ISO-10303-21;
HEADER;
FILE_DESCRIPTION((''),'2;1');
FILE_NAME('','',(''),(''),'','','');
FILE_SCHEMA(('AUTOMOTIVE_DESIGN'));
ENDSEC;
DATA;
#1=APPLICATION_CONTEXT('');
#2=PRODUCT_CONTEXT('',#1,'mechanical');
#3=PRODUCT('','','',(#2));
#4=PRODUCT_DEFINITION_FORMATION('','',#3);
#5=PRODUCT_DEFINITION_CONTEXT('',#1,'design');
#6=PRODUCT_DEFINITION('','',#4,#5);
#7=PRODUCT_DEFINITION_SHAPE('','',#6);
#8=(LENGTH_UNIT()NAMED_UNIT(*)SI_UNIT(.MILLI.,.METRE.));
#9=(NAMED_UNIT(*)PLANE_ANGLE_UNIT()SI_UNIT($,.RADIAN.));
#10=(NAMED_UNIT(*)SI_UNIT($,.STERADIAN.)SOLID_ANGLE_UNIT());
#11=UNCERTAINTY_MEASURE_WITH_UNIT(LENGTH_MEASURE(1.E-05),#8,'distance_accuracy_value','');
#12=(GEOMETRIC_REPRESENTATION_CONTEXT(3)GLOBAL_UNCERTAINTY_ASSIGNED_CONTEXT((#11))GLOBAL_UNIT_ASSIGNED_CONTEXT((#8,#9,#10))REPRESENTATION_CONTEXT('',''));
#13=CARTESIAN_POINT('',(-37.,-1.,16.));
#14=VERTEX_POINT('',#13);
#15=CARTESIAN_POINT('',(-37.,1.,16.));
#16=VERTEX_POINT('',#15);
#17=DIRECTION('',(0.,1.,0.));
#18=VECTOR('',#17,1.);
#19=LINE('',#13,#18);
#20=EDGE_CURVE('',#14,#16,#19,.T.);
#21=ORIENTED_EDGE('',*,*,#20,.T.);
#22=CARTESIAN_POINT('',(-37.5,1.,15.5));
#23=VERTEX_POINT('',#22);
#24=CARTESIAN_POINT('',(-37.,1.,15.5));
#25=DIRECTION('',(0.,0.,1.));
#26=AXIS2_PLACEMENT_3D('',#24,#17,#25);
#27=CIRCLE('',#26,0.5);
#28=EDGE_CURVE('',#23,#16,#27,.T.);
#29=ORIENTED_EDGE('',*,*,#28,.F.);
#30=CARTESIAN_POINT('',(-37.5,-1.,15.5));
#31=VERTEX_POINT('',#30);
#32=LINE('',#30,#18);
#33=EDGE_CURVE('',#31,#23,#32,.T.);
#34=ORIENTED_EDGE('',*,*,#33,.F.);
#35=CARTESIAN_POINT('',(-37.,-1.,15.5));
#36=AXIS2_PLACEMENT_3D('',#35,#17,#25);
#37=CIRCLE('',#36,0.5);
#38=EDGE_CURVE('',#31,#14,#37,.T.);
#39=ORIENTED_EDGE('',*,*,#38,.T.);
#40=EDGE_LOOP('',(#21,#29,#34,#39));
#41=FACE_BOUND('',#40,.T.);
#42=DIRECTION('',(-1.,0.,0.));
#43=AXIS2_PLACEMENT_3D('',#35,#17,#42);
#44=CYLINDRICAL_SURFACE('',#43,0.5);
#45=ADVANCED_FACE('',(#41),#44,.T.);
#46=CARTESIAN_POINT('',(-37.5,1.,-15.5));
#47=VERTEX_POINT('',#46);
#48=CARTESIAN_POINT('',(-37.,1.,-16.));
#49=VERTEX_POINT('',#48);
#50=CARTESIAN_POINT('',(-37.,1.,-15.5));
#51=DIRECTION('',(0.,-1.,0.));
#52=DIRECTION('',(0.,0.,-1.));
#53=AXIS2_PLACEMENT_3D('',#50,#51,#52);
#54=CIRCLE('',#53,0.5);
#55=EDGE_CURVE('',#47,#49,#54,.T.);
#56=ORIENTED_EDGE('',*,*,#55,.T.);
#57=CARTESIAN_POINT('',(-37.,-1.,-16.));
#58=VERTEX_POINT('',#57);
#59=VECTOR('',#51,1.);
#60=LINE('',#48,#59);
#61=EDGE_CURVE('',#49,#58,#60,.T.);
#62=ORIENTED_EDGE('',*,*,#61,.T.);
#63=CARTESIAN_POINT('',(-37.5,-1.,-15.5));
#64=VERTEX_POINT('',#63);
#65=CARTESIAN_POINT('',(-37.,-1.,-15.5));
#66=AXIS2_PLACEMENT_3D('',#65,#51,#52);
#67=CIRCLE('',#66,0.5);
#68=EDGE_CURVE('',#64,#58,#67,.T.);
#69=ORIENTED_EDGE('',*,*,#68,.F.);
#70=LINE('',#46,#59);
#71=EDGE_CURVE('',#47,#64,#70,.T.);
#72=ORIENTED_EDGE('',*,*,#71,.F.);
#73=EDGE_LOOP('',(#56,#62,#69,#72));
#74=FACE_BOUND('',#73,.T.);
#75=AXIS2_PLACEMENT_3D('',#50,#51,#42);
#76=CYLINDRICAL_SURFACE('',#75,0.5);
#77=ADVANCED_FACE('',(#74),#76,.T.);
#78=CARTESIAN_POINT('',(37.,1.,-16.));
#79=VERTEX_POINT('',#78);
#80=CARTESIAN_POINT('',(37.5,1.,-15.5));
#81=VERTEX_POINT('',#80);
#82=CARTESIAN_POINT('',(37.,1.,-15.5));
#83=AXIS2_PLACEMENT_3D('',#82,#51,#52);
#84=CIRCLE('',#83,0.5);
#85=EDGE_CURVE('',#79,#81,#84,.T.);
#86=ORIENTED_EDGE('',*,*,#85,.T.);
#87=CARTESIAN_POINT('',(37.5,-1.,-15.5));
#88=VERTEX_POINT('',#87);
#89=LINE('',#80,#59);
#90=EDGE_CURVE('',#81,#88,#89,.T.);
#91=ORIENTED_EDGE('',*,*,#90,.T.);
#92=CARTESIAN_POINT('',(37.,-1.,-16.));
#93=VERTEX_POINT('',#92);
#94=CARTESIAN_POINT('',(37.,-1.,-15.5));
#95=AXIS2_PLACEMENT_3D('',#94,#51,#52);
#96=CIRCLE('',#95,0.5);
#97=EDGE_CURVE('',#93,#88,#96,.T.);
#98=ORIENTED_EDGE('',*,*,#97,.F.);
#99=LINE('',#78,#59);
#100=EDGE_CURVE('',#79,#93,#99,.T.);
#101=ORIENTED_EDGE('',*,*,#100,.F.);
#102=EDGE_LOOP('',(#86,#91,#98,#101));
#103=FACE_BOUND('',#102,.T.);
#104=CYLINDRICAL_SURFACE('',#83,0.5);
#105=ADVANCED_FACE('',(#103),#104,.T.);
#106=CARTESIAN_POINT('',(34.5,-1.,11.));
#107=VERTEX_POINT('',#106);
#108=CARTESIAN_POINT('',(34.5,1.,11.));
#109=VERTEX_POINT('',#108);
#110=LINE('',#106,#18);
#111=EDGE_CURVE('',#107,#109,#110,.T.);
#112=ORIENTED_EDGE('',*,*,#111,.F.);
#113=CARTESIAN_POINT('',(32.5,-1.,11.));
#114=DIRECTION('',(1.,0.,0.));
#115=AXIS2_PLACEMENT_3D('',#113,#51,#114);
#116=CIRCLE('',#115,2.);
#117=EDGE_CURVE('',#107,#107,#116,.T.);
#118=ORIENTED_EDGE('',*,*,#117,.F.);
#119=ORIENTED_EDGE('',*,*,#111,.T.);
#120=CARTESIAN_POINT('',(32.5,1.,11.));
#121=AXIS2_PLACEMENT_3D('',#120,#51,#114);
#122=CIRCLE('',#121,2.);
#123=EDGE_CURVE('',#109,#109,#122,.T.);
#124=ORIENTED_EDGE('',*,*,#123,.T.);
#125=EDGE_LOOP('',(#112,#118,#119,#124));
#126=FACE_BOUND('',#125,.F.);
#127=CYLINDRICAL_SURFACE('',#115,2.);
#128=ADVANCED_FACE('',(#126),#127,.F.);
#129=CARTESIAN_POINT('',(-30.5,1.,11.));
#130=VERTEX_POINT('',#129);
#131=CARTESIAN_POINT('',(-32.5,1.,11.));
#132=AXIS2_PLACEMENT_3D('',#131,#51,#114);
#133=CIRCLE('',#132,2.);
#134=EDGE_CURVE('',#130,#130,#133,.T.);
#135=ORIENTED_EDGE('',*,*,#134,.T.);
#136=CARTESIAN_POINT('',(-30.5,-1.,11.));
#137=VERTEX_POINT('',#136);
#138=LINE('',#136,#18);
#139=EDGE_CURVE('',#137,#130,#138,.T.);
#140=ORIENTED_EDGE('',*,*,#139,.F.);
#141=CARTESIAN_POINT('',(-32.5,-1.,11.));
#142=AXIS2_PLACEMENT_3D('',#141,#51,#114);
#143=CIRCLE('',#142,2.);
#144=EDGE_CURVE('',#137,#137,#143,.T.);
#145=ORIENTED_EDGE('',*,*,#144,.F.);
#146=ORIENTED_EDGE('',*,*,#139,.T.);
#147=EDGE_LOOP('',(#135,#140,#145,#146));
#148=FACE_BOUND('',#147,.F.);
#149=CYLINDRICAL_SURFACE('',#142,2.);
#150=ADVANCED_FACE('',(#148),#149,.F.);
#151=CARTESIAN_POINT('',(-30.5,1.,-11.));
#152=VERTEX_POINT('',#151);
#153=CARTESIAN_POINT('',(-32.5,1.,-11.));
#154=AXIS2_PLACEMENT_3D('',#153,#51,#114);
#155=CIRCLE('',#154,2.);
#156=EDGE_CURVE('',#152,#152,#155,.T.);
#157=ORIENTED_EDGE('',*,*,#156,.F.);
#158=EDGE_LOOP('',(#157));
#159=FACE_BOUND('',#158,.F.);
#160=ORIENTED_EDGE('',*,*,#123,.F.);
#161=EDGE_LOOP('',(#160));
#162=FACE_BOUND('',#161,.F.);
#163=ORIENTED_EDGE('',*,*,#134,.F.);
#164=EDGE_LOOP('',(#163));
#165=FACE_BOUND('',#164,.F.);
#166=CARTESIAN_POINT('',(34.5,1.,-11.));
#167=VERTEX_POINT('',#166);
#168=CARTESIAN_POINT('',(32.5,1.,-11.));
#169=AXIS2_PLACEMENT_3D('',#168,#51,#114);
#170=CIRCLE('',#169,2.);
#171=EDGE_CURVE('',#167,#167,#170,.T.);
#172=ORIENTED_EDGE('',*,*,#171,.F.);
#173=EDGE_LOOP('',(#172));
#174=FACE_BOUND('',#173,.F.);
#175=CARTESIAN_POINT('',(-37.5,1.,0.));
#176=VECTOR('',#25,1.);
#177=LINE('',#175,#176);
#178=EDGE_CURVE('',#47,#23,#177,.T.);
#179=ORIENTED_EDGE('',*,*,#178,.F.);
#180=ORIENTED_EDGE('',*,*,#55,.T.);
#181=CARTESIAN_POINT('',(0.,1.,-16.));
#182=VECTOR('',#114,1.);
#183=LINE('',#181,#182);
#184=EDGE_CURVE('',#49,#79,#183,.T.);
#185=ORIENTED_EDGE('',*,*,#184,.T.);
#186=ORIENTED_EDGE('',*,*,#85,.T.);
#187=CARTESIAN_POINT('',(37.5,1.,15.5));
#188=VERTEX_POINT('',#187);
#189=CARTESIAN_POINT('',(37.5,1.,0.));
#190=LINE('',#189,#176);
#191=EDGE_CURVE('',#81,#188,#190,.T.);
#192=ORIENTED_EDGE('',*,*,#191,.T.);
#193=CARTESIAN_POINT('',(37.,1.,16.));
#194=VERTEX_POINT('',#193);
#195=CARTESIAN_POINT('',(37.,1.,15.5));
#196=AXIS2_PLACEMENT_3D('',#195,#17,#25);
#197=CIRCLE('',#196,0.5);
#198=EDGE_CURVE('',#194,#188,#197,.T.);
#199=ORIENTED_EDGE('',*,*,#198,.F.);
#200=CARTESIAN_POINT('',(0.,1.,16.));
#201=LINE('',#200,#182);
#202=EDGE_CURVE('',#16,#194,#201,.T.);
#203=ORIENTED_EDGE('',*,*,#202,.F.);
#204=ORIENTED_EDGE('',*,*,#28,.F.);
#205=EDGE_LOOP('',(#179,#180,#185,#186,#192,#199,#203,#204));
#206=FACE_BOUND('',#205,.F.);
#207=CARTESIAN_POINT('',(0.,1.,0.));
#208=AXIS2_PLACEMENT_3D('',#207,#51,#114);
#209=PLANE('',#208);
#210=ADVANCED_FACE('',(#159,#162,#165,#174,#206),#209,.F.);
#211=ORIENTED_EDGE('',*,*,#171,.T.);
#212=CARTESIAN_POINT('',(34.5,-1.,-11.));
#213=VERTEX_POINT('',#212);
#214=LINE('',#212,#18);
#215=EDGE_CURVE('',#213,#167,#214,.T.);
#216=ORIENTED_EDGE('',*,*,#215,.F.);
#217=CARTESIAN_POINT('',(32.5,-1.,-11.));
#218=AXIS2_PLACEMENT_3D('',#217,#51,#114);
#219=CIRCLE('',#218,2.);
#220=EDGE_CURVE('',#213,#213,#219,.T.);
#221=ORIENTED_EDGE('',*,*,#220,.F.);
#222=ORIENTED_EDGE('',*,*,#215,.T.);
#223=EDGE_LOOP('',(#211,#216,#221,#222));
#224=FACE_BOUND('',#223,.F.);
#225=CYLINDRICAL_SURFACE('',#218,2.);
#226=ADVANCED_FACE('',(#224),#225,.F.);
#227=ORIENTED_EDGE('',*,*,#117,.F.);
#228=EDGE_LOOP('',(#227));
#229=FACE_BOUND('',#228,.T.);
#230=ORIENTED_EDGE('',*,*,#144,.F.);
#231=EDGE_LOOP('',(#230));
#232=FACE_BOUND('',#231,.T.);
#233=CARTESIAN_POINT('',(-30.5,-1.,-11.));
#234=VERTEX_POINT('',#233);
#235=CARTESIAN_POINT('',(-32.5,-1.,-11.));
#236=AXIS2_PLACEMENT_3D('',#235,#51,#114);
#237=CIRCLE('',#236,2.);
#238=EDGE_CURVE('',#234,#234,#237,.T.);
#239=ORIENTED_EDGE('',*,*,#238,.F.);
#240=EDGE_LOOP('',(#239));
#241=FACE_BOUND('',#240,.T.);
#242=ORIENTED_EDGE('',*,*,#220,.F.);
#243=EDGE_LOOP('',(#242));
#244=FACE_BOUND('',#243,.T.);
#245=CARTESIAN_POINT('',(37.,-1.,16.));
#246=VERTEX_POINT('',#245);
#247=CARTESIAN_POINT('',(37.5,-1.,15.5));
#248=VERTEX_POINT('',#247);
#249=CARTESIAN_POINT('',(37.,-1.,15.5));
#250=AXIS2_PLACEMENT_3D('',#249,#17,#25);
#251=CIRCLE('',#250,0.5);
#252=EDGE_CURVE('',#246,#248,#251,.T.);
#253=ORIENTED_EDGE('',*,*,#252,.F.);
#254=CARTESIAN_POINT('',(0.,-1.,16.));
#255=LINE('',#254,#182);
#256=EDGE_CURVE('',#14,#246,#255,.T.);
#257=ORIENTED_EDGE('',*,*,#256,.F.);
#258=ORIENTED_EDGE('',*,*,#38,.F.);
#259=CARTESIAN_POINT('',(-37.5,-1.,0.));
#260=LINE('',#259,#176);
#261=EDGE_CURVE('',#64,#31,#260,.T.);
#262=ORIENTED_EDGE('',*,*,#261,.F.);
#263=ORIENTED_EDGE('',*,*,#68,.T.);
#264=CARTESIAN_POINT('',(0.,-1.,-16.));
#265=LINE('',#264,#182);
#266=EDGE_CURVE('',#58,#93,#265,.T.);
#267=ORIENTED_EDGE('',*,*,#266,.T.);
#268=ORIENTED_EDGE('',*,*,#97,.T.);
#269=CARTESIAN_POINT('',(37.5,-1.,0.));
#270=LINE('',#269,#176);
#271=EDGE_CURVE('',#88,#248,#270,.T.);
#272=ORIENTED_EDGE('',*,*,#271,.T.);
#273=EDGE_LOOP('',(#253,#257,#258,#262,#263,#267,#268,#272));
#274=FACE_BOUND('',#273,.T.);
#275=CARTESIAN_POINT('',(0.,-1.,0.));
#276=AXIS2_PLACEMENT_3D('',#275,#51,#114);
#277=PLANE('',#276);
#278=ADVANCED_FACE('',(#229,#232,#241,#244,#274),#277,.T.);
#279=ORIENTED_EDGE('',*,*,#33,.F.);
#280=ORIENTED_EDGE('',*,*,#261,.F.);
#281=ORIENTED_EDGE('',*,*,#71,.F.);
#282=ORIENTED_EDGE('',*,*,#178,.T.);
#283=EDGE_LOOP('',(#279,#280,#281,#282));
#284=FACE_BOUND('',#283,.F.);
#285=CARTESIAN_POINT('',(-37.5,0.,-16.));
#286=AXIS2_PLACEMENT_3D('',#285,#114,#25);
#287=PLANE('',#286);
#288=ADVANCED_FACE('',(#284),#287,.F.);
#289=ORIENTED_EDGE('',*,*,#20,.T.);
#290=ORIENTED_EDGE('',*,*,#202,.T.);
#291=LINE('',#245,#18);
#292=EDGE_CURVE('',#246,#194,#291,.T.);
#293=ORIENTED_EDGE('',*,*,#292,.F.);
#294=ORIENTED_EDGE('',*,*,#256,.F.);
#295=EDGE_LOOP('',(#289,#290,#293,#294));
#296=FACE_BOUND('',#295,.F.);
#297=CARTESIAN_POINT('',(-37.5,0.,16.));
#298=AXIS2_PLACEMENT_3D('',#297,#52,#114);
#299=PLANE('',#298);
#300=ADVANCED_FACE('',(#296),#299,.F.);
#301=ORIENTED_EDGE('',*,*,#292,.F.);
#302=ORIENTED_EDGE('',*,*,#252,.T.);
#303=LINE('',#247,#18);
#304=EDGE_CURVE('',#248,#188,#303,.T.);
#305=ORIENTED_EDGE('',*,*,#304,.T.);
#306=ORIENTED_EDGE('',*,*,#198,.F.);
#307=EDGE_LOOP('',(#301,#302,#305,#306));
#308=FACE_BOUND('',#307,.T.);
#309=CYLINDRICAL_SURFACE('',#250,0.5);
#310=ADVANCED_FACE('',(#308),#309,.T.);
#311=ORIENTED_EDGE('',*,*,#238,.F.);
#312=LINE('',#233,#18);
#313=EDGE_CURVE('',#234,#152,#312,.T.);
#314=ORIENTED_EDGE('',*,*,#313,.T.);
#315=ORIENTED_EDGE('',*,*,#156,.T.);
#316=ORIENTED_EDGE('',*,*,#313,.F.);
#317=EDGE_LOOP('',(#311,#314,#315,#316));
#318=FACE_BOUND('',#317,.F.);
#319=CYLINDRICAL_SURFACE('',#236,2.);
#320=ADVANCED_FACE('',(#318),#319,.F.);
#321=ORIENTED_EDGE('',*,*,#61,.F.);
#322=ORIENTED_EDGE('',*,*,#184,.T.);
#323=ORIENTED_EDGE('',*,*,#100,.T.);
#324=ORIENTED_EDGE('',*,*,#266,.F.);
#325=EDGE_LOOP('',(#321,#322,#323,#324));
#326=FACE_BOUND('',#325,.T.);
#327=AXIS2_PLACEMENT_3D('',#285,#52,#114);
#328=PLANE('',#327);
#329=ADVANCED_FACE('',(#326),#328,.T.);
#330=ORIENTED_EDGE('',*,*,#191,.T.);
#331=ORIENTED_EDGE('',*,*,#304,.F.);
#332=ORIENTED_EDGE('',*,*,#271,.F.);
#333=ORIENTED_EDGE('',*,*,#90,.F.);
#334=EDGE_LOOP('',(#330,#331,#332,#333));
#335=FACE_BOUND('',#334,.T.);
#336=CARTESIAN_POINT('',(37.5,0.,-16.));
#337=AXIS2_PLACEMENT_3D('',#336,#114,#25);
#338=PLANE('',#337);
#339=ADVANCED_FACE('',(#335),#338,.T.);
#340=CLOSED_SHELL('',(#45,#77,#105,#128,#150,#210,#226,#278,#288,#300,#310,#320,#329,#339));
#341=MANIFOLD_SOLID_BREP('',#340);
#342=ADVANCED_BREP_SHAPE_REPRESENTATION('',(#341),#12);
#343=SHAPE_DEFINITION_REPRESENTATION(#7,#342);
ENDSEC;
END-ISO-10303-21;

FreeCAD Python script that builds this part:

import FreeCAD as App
import Part
import Sketcher

V = App.Vector


def edges_at(feature, points):
    """Names of the edges that pass closest to the given points."""
    edges = feature.Shape.Edges
    near = lambda p: min(range(len(edges)), key=lambda i: edges[i].distToShape(Part.Vertex(*p))[0])
    return sorted({f"Edge{near(p) + 1}" for p in points})

doc = App.newDocument("Part")
params = doc.addObject("Spreadsheet::Sheet", "Params")
for row, (alias, value) in enumerate([
    ("sketch1_width", "75 mm"),
    ("sketch1_height", "32 mm"),
    ("pad1_length", "2 mm"),
    ("sketch2_diameter", "4 mm"),
    ("pocket1_length", "25.4 mm"),
    ("fillet_radius", "0.5 mm"),
], start=1):
    params.set(f"A{row}", alias)
    params.set(f"B{row}", "=" + value)
    params.setAlias(f"B{row}", alias)

body = doc.addObject("PartDesign::Body", "Body")

sketch1 = body.newObject("Sketcher::SketchObject", "Sketch")
sketch1.AttachmentSupport = (doc.getObject("XZ_Plane"), [""])
sketch1.MapMode = "FlatFace"
sketch1.addGeometry(Part.LineSegment(V(-38, 16, 0), V(-38, -16, 0)), False)
sketch1.addGeometry(Part.LineSegment(V(-38, -16, 0), V(38, -16, 0)), False)
sketch1.addGeometry(Part.LineSegment(V(38, -16, 0), V(38, 16, 0)), False)
sketch1.addGeometry(Part.LineSegment(V(38, 16, 0), V(-38, 16, 0)), False)
sketch1.addConstraint(Sketcher.Constraint("Coincident", 0, 2, 1, 1))
sketch1.addConstraint(Sketcher.Constraint("Coincident", 1, 2, 2, 1))
sketch1.addConstraint(Sketcher.Constraint("Coincident", 2, 2, 3, 1))
sketch1.addConstraint(Sketcher.Constraint("Coincident", 3, 2, 0, 1))
sketch1.addConstraint(Sketcher.Constraint("Vertical", 0))
sketch1.addConstraint(Sketcher.Constraint("Horizontal", 1))
sketch1.addConstraint(Sketcher.Constraint("Vertical", 2))
sketch1.addConstraint(Sketcher.Constraint("Horizontal", 3))
sketch1.addConstraint(Sketcher.Constraint("Symmetric", 0, 2, 2, 2, -1, 1))
sketch1.addConstraint(Sketcher.Constraint("DistanceX", 1, 1, 1, 2, 75.0))
sketch1.addConstraint(Sketcher.Constraint("DistanceY", 0, 2, 0, 1, 32.0))
sketch1.setExpression("Constraints[9]", "Params.sketch1_width")
sketch1.setExpression("Constraints[10]", "Params.sketch1_height")
pad1 = body.newObject("PartDesign::Pad", "Pad")
pad1.Profile = sketch1
pad1.setExpression("Length", "Params.pad1_length")
pad1.Midplane = True

sketch2 = body.newObject("Sketcher::SketchObject", "Sketch001")
sketch2.AttachmentSupport = (doc.getObject("XZ_Plane"), [""])
sketch2.MapMode = "FlatFace"
sketch2.AttachmentOffset = App.Placement(V(0, 0, 1), App.Rotation())
sketch2.addGeometry(Part.Circle(V(-32.5, 11, 0), V(0, 0, 1), 2), False)
sketch2.addGeometry(Part.Circle(V(-32.5, -11, 0), V(0, 0, 1), 2), False)
sketch2.addGeometry(Part.Circle(V(32.5, -11, 0), V(0, 0, 1), 2), False)
sketch2.addGeometry(Part.Circle(V(32.5, 11, 0), V(0, 0, 1), 2), False)
sketch2.addConstraint(Sketcher.Constraint("Equal", 0, 1))
sketch2.addConstraint(Sketcher.Constraint("Equal", 1, 2))
sketch2.addConstraint(Sketcher.Constraint("Equal", 2, 3))
sketch2.addConstraint(Sketcher.Constraint("Symmetric", 0, 3, 2, 3, -1, 1))
sketch2.addConstraint(Sketcher.Constraint("Symmetric", 1, 3, 3, 3, -1, 1))
sketch2.addConstraint(Sketcher.Constraint("Symmetric", 1, 3, 2, 3, -2))
sketch2.addConstraint(Sketcher.Constraint("Diameter", 0, 4.0))
sketch2.addConstraint(Sketcher.Constraint("DistanceY", -1, 1, 0, 3, 11.0))
sketch2.addConstraint(Sketcher.Constraint("DistanceX", 1, 3, 2, 3, 65.0))
sketch2.setExpression("Constraints[6]", "Params.sketch2_diameter")
pocket1 = body.newObject("PartDesign::Pocket", "Pocket")
pocket1.Profile = sketch2
pocket1.setExpression("Length", "Params.pocket1_length")
doc.recompute()

fillet = body.newObject("PartDesign::Fillet", "Fillet")
fillet.Base = (pocket1, edges_at(pocket1, [
    (37.5, 0, 16),
    (37.5, 0, -16),
    (-37.5, 0, 16),
    (-37.5, 0, -16),
]))
fillet.setExpression("Radius", "Params.fillet_radius")

doc.recompute()
